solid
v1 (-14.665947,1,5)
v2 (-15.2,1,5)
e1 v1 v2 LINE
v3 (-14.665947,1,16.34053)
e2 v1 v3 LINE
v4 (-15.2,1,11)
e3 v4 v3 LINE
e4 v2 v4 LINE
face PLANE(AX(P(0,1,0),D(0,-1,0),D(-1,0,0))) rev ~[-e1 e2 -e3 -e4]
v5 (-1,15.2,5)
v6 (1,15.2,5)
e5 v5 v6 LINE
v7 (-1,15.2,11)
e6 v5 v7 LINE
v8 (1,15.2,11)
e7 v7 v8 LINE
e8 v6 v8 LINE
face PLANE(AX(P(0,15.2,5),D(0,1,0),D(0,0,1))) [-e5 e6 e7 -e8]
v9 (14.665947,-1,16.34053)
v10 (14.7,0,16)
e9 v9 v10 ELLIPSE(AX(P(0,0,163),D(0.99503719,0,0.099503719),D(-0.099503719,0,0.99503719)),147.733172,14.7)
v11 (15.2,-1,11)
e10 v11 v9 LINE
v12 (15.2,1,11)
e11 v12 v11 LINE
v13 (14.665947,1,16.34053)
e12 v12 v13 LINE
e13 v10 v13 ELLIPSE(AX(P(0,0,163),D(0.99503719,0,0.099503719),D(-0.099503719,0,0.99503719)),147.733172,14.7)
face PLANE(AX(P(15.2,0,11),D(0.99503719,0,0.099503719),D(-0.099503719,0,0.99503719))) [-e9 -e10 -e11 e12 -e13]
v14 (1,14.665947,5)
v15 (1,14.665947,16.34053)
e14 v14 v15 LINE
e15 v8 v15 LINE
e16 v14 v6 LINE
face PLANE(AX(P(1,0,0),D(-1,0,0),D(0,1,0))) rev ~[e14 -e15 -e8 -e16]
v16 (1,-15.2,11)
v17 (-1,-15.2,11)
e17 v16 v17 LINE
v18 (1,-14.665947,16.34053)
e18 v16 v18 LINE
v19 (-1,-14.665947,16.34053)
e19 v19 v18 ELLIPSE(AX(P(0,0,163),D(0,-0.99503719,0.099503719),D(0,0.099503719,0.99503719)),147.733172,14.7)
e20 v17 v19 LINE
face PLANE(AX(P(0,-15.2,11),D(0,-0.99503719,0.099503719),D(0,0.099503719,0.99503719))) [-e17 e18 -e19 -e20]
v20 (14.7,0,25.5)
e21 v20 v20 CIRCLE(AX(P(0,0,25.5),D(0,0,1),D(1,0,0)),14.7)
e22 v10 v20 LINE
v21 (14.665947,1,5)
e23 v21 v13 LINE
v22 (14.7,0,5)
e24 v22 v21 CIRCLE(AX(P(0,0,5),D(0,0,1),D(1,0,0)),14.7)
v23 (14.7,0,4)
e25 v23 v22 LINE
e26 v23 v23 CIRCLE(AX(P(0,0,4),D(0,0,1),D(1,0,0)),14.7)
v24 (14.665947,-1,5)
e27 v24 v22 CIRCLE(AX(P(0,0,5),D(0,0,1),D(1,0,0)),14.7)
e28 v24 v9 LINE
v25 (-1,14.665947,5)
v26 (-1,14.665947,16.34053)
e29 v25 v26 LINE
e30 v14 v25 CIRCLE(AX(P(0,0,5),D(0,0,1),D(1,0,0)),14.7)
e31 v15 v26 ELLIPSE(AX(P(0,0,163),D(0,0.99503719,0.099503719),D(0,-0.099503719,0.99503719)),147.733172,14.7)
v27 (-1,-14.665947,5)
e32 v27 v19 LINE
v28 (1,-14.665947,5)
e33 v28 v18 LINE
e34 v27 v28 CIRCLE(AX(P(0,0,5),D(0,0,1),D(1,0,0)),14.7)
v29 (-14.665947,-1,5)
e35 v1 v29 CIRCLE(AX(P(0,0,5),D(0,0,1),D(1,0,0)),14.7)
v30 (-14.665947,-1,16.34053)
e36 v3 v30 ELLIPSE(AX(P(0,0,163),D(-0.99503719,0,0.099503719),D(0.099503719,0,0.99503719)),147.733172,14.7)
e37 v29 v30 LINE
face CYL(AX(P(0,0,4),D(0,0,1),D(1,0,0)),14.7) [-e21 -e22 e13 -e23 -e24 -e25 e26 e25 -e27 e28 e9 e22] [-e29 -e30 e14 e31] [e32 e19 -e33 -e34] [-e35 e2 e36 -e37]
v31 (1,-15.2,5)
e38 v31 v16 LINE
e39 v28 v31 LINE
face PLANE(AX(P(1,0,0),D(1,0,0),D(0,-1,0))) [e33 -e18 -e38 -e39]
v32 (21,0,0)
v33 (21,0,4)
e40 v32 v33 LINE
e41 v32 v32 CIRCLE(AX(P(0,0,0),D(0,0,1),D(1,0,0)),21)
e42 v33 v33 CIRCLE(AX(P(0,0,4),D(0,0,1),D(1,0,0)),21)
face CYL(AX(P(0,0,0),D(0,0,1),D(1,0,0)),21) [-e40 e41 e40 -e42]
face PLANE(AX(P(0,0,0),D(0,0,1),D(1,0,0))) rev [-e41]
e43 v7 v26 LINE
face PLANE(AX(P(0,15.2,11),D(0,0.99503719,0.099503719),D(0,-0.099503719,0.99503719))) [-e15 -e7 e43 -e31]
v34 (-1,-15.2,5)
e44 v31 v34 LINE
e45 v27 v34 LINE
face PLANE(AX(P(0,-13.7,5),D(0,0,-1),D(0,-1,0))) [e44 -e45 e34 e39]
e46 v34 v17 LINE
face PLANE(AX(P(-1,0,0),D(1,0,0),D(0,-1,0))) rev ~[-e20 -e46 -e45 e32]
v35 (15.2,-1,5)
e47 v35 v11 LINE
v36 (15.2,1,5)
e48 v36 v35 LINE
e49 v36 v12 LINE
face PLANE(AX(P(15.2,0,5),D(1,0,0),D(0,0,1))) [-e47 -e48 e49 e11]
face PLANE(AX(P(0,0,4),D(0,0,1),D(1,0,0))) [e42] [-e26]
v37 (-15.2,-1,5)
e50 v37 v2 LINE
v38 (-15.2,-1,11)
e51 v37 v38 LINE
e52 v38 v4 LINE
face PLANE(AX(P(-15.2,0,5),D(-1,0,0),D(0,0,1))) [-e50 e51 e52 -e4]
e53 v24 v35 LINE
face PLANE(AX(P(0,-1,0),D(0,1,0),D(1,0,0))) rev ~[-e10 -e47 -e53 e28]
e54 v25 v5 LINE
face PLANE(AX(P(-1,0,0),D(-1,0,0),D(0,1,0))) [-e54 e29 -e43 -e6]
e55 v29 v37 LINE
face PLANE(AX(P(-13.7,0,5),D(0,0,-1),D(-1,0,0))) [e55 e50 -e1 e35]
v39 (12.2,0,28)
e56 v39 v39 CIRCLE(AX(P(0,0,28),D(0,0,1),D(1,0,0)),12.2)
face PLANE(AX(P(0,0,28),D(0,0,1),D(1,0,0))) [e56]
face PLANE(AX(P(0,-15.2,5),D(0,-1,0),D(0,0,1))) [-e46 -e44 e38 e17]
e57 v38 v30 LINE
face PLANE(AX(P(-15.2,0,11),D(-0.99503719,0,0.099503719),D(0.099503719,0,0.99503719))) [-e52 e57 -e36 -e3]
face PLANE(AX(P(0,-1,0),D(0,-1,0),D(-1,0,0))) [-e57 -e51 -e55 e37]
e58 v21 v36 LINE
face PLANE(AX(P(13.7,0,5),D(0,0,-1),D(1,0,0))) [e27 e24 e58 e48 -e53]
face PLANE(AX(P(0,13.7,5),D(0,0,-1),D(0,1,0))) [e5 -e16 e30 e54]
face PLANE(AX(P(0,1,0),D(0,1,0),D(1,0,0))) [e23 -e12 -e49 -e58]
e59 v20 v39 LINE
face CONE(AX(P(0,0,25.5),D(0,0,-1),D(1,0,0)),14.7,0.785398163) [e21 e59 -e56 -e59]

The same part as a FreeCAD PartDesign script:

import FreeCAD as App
import Part
import Sketcher


def add_polygon(sketch, points):
    """Adds a closed chain of lines whose ends are joined by coincident constraints."""
    first, n = sketch.GeometryCount, len(points)
    for a, b in zip(points, points[1:] + points[:1]):
        sketch.addGeometry(Part.LineSegment(App.Vector(*a, 0), App.Vector(*b, 0)), False)
    for i in range(n):
        sketch.addConstraint(Sketcher.Constraint("Coincident", first + i, 2, first + (i + 1) % n, 1))

doc = App.newDocument("Part")
body = doc.addObject("PartDesign::Body", "Body")

# Sketch on XZ plane
sketch1 = body.newObject("Sketcher::SketchObject", "Sketch")
sketch1.AttachmentSupport = (doc.getObject("XZ_Plane"), [""])
sketch1.MapMode = "FlatFace"
add_polygon(sketch1, [(21, 0), (0, 0), (0, 28), (12.2, 28), (14.7, 25.5), (14.7, 4), (21, 4)])  # lines 0-6
sketch1.addConstraint(Sketcher.Constraint("Horizontal", 0))
sketch1.addConstraint(Sketcher.Constraint("Vertical", 1))
sketch1.addConstraint(Sketcher.Constraint("Horizontal", 2))
sketch1.addConstraint(Sketcher.Constraint("Vertical", 4))
sketch1.addConstraint(Sketcher.Constraint("Horizontal", 5))
sketch1.addConstraint(Sketcher.Constraint("Vertical", 6))
sketch1.addConstraint(Sketcher.Constraint("Coincident", 0, 2, -1, 1))
sketch1.addConstraint(Sketcher.Constraint("DistanceX", 0, 2, 0, 1, 21.0))
sketch1.addConstraint(Sketcher.Constraint("DistanceY", 1, 1, 1, 2, 28.0))
sketch1.addConstraint(Sketcher.Constraint("DistanceY", 6, 2, 6, 1, 4.0))
sketch1.addConstraint(Sketcher.Constraint("DistanceX", -1, 1, 3, 2, 14.7))
sketch1.addConstraint(Sketcher.Constraint("DistanceX", 2, 2, 3, 2, 2.5))
sketch1.addConstraint(Sketcher.Constraint("DistanceY", 3, 2, 2, 2, 2.5))
revolution = body.newObject("PartDesign::Revolution", "Revolution")
revolution.Profile = sketch1
revolution.ReferenceAxis = (sketch1, ["V_Axis"])
revolution.Angle = 360

# Sketch on XZ plane
sketch2 = body.newObject("Sketcher::SketchObject", "Sketch001")
sketch2.AttachmentSupport = (doc.getObject("XZ_Plane"), [""])
sketch2.MapMode = "FlatFace"
add_polygon(sketch2, [(15.2, 5), (13.7, 5), (13.7, 26), (15.2, 11)])  # lines 0-3
sketch2.addConstraint(Sketcher.Constraint("Horizontal", 0))
sketch2.addConstraint(Sketcher.Constraint("Vertical", 1))
sketch2.addConstraint(Sketcher.Constraint("Vertical", 3))
sketch2.addConstraint(Sketcher.Constraint("DistanceY", -1, 1, 0, 2, 5.0))
sketch2.addConstraint(Sketcher.Constraint("DistanceY", -1, 1, 1, 2, 26.0))
sketch2.addConstraint(Sketcher.Constraint("DistanceY", -1, 1, 2, 2, 11.0))
sketch2.addConstraint(Sketcher.Constraint("DistanceX", -1, 1, 0, 2, 13.7))
sketch2.addConstraint(Sketcher.Constraint("DistanceX", -1, 1, 2, 2, 15.2))
pad1 = body.newObject("PartDesign::Pad", "Pad")
pad1.Profile = sketch2
pad1.Length = 2
pad1.Midplane = True
doc.recompute()

polarpattern = body.newObject("PartDesign::PolarPattern", "PolarPattern")
polarpattern.Originals = [pad1]
polarpattern.Axis = (doc.getObject("Z_Axis"), [""])
polarpattern.Angle = 360
polarpattern.Occurrences = 4
body.Tip = polarpattern

doc.recompute()
